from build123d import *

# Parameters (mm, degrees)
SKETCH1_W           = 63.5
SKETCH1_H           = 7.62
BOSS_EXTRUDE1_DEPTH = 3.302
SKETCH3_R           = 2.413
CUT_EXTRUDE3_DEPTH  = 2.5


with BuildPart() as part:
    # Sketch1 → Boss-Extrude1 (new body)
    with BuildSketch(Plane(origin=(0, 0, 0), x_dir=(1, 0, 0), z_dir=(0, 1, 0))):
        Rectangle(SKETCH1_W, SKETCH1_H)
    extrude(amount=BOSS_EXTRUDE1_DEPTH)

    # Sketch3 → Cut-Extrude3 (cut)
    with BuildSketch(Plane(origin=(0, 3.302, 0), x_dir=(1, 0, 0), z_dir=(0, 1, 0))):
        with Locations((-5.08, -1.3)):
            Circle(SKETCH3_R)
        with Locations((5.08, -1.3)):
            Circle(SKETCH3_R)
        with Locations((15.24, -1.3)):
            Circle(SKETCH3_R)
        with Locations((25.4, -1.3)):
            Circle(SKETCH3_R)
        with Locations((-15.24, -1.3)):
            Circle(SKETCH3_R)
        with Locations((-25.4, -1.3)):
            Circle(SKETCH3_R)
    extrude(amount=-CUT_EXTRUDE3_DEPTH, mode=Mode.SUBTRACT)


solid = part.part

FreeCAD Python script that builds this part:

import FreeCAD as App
import Part
import Sketcher

V = App.Vector
Q = App.Units.Quantity


def add_polygon(sketch, points):
    """Adds a closed chain of lines whose ends are joined by coincident constraints."""
    first, n = sketch.GeometryCount, len(points)
    for a, b in zip(points, points[1:] + points[:1]):
        sketch.addGeometry(Part.LineSegment(App.Vector(*a, 0), App.Vector(*b, 0)), False)
    for i in range(n):
        sketch.addConstraint(Sketcher.Constraint("Coincident", first + i, 2, first + (i + 1) % n, 1))

doc = App.newDocument("Part")
body = doc.addObject("PartDesign::Body", "Body")

# Sketch on XZ plane
sketch1 = body.newObject("Sketcher::SketchObject", "Sketch")
sketch1.AttachmentSupport = (doc.getObject("XZ_Plane"), [""])
sketch1.MapMode = "FlatFace"
add_polygon(sketch1, [(-31.75, -3.81), (-31.75, 3.81), (31.75, 3.81), (31.75, -3.81)])  # lines 0-3
sketch1.addConstraint(Sketcher.Constraint("Vertical", 0))
sketch1.addConstraint(Sketcher.Constraint("Horizontal", 1))
sketch1.addConstraint(Sketcher.Constraint("Vertical", 2))
sketch1.addConstraint(Sketcher.Constraint("Horizontal", 3))
sketch1.addConstraint(Sketcher.Constraint("Symmetric", 0, 2, 2, 2, -1, 1))
sketch1.addConstraint(Sketcher.Constraint("DistanceX", 1, 1, 1, 2, Q("2.5 in")))
sketch1.addConstraint(Sketcher.Constraint("DistanceY", 0, 1, 0, 2, Q("0.3 in")))
pad1 = body.newObject("PartDesign::Pad", "Pad")
pad1.Profile = sketch1
pad1.Length = Q("0.13 in")
pad1.Reversed = True

# Sketch on XZ plane
sketch2 = body.newObject("Sketcher::SketchObject", "Sketch001")
sketch2.AttachmentSupport = (doc.getObject("XZ_Plane"), [""])
sketch2.MapMode = "FlatFace"
sketch2.AttachmentOffset = App.Placement(V(0, 0, -0.13 * 25.4), App.Rotation())
sketch2.addGeometry(Part.Circle(V(-5.08, 1.3, 0), V(0, 0, 1), 2.413), False)
sketch2.addGeometry(Part.Circle(V(5.08, 1.3, 0), V(0, 0, 1), 2.413), False)
sketch2.addGeometry(Part.Circle(V(15.24, 1.3, 0), V(0, 0, 1), 2.413), False)
sketch2.addGeometry(Part.Circle(V(25.4, 1.3, 0), V(0, 0, 1), 2.413), False)
sketch2.addGeometry(Part.Circle(V(-15.24, 1.3, 0), V(0, 0, 1), 2.413), False)
sketch2.addGeometry(Part.Circle(V(-25.4, 1.3, 0), V(0, 0, 1), 2.413), False)
sketch2.addConstraint(Sketcher.Constraint("Equal", 0, 1))
sketch2.addConstraint(Sketcher.Constraint("Equal", 1, 2))
sketch2.addConstraint(Sketcher.Constraint("Equal", 2, 3))
sketch2.addConstraint(Sketcher.Constraint("Equal", 3, 4))
sketch2.addConstraint(Sketcher.Constraint("Equal", 4, 5))
sketch2.addConstraint(Sketcher.Constraint("Symmetric", 0, 3, 1, 3, -2))
sketch2.addConstraint(Sketcher.Constraint("Symmetric", 2, 3, 4, 3, -2))
sketch2.addConstraint(Sketcher.Constraint("Symmetric", 3, 3, 5, 3, -2))
sketch2.addConstraint(Sketcher.Constraint("Horizontal", 1, 3, 2, 3))
sketch2.addConstraint(Sketcher.Constraint("Horizontal", 2, 3, 3, 3))
sketch2.addConstraint(Sketcher.Constraint("Diameter", 0, Q("0.19 in")))
sketch2.addConstraint(Sketcher.Constraint("DistanceX", -1, 1, 3, 3, Q("1 in")))
sketch2.addConstraint(Sketcher.Constraint("DistanceX", 0, 3, -1, 1, Q("0.2 in")))
sketch2.addConstraint(Sketcher.Constraint("DistanceX", -1, 1, 2, 3, Q("0.6 in")))
sketch2.addConstraint(Sketcher.Constraint("DistanceY", -1, 1, 0, 3, Q("1.3 mm")))
pocket1 = body.newObject("PartDesign::Pocket", "Pocket")
pocket1.Profile = sketch2
pocket1.Length = 2.5
pocket1.Reversed = True

doc.recompute()
